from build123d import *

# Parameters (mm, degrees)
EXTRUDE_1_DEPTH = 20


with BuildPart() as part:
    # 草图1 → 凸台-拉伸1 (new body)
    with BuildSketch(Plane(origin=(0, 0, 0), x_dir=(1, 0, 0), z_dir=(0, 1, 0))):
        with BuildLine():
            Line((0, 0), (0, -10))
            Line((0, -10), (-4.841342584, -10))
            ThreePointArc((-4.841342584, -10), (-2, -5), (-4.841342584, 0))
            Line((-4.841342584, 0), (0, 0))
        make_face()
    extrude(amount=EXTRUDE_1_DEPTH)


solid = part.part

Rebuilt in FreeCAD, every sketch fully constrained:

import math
import FreeCAD as App
import Part
import Sketcher

V = App.Vector

doc = App.newDocument("Part")
body = doc.addObject("PartDesign::Body", "Body")

sketch1 = body.newObject("Sketcher::SketchObject", "Sketch")
sketch1.AttachmentSupport = (doc.getObject("XZ_Plane"), [""])
sketch1.MapMode = "FlatFace"
sketch1.addGeometry([
    Part.LineSegment(V(0, 10, 0), V(0, 0, 0)),
    Part.LineSegment(V(0, 0, 0), V(-4.8, 0, 0)),
    Part.ArcOfCircle(Part.Circle(V(-7.8, 5, 0), V(0, 0, 1), 5.8), math.radians(-59), math.radians(59)),
    Part.LineSegment(V(-4.8, 10, 0), V(0, 10, 0)),
], False)
sketch1.addConstraint([
    Sketcher.Constraint("Coincident", 0, 2, 1, 1),
    Sketcher.Constraint("Coincident", 1, 2, 2, 1),
    Sketcher.Constraint("Coincident", 2, 2, 3, 1),
    Sketcher.Constraint("Coincident", 3, 2, 0, 1),
    Sketcher.Constraint("Vertical", 0),
    Sketcher.Constraint("Horizontal", 1),
    Sketcher.Constraint("Horizontal", 3),
    Sketcher.Constraint("Coincident", 0, 2, -1, 1),
    Sketcher.Constraint("Vertical", 1, 2, 2, 2),
    Sketcher.Constraint("DistanceY", 0, 2, 0, 1, 10.0),
    Sketcher.Constraint("Radius", 2, 5.82),
    Sketcher.Constraint("DistanceX", 2, 3, -1, 1, 7.82),
])
pad1 = body.newObject("PartDesign::Pad", "Pad")
pad1.Profile = sketch1
pad1.Length = 20
pad1.Reversed = True

doc.recompute()
